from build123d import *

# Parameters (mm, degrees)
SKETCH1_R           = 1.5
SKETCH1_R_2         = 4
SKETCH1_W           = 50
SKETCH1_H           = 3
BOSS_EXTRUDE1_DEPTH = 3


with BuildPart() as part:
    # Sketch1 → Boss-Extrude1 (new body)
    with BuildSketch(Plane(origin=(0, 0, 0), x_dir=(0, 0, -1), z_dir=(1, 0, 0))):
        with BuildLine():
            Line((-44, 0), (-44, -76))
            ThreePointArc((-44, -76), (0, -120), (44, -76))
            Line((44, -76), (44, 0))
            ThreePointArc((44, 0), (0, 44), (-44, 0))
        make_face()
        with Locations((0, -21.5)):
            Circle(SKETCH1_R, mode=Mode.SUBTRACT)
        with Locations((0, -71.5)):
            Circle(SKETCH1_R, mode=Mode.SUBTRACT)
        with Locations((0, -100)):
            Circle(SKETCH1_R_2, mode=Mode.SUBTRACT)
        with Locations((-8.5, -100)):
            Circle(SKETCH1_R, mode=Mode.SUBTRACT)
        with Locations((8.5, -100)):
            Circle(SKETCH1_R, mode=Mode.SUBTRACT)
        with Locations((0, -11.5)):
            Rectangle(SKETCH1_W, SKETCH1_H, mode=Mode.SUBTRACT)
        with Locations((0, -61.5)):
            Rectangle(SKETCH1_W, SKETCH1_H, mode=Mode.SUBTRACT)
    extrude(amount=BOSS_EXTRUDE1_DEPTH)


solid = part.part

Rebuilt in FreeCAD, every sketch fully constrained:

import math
import FreeCAD as App
import Part
import Sketcher

V = App.Vector
Q = App.Units.Quantity


def add_polygon(sketch, points):
    """Adds a closed chain of lines whose ends are joined by coincident constraints."""
    first, n = sketch.GeometryCount, len(points)
    for a, b in zip(points, points[1:] + points[:1]):
        sketch.addGeometry(Part.LineSegment(App.Vector(*a, 0), App.Vector(*b, 0)), False)
    for i in range(n):
        sketch.addConstraint(Sketcher.Constraint("Coincident", first + i, 2, first + (i + 1) % n, 1))

doc = App.newDocument("Part")
body = doc.addObject("PartDesign::Body", "Body")

sketch1 = doc.addObject("Sketcher::SketchObject", "Sketch")
body.addObject(sketch1)
sketch1.AttachmentSupport = (doc.YZ_Plane, [""])
sketch1.MapMode = "FlatFace"
sketch1.addGeometry(Part.LineSegment(V(0, 44, 0), V(-76, 44, 0)), False)
sketch1.addGeometry(Part.ArcOfCircle(Part.Circle(V(-76, 0, 0), V(0, 0, 1), 44), math.radians(90), math.radians(270)), False)
sketch1.addGeometry(Part.LineSegment(V(-76, -44, 0), V(0, -44, 0)), False)
sketch1.addGeometry(Part.ArcOfCircle(Part.Circle(V(0, 0, 0), V(0, 0, 1), 44), math.radians(-90), math.radians(90)), False)
sketch1.addGeometry(Part.Circle(V(-100, 8.5, 0), V(0, 0, 1), 1.5), False)
sketch1.addGeometry(Part.Circle(V(-100, 0, 0), V(0, 0, 1), 4), False)
sketch1.addGeometry(Part.Circle(V(-100, -8.5, 0), V(0, 0, 1), 1.5), False)
sketch1.addGeometry(Part.Circle(V(-71.5, 0, 0), V(0, 0, 1), 1.5), False)
add_polygon(sketch1, [(-63, -25), (-63, 25), (-60, 25), (-60, -25)])
sketch1.addGeometry(Part.Circle(V(-21.5, 0, 0), V(0, 0, 1), 1.5), False)
add_polygon(sketch1, [(-13, -25), (-13, 25), (-10, 25), (-10, -25)])
sketch1.addConstraint(Sketcher.Constraint("Tangent", 0, 2, 1, 1))
sketch1.addConstraint(Sketcher.Constraint("Tangent", 1, 2, 2, 1))
sketch1.addConstraint(Sketcher.Constraint("Tangent", 2, 2, 3, 1))
sketch1.addConstraint(Sketcher.Constraint("Tangent", 3, 2, 0, 1))
sketch1.addConstraint(Sketcher.Constraint("Horizontal", 0))
sketch1.addConstraint(Sketcher.Constraint("Horizontal", 2))
sketch1.addConstraint(Sketcher.Constraint("Vertical", 8))
sketch1.addConstraint(Sketcher.Constraint("Horizontal", 9))
sketch1.addConstraint(Sketcher.Constraint("Vertical", 10))
sketch1.addConstraint(Sketcher.Constraint("Horizontal", 11))
sketch1.addConstraint(Sketcher.Constraint("Vertical", 13))
sketch1.addConstraint(Sketcher.Constraint("Horizontal", 14))
sketch1.addConstraint(Sketcher.Constraint("Vertical", 15))
sketch1.addConstraint(Sketcher.Constraint("Horizontal", 16))
sketch1.addConstraint(Sketcher.Constraint("Coincident", 3, 3, -1, 1))
sketch1.addConstraint(Sketcher.Constraint("Equal", 4, 6))
sketch1.addConstraint(Sketcher.Constraint("Equal", 6, 7))
sketch1.addConstraint(Sketcher.Constraint("Equal", 7, 12))
sketch1.addConstraint(Sketcher.Constraint("Symmetric", 4, 3, 6, 3, -1))
sketch1.addConstraint(Sketcher.Constraint("PointOnObject", 5, 3, -1))
sketch1.addConstraint(Sketcher.Constraint("PointOnObject", 7, 3, -1))
sketch1.addConstraint(Sketcher.Constraint("PointOnObject", 12, 3, -1))
sketch1.addConstraint(Sketcher.Constraint("Horizontal", 9, 2, 13, 2))
sketch1.addConstraint(Sketcher.Constraint("Horizontal", 11, 2, 15, 2))
sketch1.addConstraint(Sketcher.Constraint("Vertical", 4, 3, 5, 3))
sketch1.addConstraint(Sketcher.Constraint("Equal", 11, 14))
sketch1.addConstraint(Sketcher.Constraint("Diameter", 4, Q("3 mm")))
sketch1.addConstraint(Sketcher.Constraint("Diameter", 5, Q("8 mm")))
sketch1.addConstraint(Sketcher.Constraint("Radius", 1, Q("44 mm")))
sketch1.addConstraint(Sketcher.Constraint("DistanceX", 0, 2, 0, 1, Q("76 mm")))
sketch1.addConstraint(Sketcher.Constraint("DistanceX", 9, 1, 9, 2, Q("3 mm")))
sketch1.addConstraint(Sketcher.Constraint("DistanceY", 8, 1, 8, 2, Q("50 mm")))
sketch1.addConstraint(Sketcher.Constraint("DistanceX", 4, 3, -1, 1, Q("100 mm")))
sketch1.addConstraint(Sketcher.Constraint("DistanceX", 8, 2, -1, 1, Q("63 mm")))
sketch1.addConstraint(Sketcher.Constraint("DistanceY", -1, 1, 8, 2, Q("25 mm")))
sketch1.addConstraint(Sketcher.Constraint("DistanceX", 13, 2, -1, 1, Q("13 mm")))
sketch1.addConstraint(Sketcher.Constraint("DistanceY", 6, 3, 4, 3, Q("17 mm")))
sketch1.addConstraint(Sketcher.Constraint("DistanceX", 7, 3, 12, 3, Q("50 mm")))
sketch1.addConstraint(Sketcher.Constraint("DistanceX", 7, 3, -1, 1, Q("71.5 mm")))
pad1 = doc.addObject("PartDesign::Pad", "Pad")
body.addObject(pad1)
pad1.Profile = sketch1
pad1.Length = 3

doc.recompute()
